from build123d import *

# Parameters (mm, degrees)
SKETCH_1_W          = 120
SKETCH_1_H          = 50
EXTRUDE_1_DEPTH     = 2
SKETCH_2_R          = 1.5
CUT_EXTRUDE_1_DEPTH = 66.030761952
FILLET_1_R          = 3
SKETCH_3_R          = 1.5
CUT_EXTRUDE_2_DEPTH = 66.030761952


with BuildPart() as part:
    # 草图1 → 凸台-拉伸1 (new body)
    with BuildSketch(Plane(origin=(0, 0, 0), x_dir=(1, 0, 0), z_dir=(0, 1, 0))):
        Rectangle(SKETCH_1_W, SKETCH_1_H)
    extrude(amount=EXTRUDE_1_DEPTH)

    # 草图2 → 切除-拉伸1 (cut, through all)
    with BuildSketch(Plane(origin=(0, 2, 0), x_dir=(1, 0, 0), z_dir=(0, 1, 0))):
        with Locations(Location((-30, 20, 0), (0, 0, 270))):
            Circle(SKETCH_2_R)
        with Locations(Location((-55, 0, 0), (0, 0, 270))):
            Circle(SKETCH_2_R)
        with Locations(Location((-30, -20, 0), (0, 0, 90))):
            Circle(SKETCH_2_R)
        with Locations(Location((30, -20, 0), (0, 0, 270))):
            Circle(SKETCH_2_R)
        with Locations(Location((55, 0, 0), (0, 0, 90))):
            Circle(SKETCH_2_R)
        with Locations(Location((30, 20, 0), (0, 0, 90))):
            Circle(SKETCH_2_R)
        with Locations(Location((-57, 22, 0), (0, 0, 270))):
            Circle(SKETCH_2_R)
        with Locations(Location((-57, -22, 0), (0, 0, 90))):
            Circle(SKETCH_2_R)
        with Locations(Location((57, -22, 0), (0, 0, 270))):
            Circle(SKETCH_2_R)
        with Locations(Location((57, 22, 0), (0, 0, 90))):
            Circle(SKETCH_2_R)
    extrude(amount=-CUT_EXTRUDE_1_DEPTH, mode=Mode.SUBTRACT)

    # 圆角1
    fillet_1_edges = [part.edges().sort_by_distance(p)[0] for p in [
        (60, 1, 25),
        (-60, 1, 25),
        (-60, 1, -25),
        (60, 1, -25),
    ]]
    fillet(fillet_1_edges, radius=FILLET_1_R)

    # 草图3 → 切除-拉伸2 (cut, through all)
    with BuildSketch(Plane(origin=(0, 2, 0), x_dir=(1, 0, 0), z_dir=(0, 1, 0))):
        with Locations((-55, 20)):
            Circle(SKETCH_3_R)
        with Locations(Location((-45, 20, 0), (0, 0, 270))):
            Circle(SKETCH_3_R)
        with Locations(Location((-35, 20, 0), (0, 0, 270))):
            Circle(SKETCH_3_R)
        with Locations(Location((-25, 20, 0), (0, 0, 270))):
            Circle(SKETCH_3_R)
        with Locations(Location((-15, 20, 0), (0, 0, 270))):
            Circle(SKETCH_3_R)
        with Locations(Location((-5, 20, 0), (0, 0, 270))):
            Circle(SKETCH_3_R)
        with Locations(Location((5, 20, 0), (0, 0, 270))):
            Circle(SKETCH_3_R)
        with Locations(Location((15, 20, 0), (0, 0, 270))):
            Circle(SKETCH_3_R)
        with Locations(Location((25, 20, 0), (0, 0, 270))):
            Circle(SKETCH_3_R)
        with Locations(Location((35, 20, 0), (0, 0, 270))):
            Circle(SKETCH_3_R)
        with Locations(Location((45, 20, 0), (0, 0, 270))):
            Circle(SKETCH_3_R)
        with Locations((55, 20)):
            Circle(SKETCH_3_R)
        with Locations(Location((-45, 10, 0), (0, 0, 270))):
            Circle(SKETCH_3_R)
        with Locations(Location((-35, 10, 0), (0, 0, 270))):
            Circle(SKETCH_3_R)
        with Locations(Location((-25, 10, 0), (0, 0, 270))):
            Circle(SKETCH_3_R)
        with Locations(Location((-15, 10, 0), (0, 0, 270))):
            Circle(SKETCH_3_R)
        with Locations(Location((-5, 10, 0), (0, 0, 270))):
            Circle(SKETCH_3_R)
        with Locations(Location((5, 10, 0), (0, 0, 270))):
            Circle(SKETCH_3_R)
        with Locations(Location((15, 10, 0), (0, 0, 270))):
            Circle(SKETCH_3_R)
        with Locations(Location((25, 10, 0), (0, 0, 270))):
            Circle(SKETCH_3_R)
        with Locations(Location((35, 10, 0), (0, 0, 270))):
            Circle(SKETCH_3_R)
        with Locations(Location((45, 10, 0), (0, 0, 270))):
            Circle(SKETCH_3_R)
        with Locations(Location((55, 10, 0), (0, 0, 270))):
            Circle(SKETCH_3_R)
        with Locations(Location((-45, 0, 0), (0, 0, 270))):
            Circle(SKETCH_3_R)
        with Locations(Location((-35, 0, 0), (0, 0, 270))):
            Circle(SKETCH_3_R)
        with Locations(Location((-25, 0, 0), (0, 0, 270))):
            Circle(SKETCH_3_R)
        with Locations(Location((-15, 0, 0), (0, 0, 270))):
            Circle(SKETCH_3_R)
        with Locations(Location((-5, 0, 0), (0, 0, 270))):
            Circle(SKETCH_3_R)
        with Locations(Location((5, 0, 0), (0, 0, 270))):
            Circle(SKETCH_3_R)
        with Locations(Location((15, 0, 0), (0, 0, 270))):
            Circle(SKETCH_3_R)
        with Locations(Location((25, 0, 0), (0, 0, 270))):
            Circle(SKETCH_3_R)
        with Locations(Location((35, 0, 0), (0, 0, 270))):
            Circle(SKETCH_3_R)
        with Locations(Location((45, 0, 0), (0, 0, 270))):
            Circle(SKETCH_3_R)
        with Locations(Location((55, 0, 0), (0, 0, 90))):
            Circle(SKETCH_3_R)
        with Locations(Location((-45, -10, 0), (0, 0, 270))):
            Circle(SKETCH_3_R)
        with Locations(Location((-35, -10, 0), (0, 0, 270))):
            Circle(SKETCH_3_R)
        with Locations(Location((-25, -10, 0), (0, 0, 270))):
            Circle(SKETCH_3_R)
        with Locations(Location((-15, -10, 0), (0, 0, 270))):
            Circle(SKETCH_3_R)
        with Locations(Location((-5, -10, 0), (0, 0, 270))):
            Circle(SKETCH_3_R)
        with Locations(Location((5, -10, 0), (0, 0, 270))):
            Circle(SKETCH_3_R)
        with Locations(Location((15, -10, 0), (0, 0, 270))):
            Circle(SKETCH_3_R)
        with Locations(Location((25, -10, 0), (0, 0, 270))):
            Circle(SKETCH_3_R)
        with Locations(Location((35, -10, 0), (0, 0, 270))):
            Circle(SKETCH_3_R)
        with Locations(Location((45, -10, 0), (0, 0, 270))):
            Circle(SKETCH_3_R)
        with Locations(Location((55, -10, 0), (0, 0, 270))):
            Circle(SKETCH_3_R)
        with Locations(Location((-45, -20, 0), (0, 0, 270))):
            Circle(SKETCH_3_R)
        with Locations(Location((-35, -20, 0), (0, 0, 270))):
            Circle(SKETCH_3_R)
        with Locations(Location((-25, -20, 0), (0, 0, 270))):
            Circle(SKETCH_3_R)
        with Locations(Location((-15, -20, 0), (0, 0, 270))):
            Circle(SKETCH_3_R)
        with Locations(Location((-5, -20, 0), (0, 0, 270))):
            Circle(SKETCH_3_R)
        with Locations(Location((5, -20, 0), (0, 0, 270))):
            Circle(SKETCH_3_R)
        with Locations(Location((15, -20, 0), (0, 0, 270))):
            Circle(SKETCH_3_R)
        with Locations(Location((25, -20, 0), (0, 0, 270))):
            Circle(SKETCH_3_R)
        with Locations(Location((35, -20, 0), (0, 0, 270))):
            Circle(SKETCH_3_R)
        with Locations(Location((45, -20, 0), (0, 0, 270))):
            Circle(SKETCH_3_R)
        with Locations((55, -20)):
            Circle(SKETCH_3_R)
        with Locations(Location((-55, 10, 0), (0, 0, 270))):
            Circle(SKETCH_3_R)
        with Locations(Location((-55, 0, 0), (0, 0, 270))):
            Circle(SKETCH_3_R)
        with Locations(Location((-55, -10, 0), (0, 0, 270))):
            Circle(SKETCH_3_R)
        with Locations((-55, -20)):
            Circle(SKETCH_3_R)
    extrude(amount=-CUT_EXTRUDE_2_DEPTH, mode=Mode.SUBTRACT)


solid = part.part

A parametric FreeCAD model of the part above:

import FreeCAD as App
import Part
import Sketcher

V = App.Vector
Q = App.Units.Quantity


def edges_at(feature, points):
    """Names of the edges that pass closest to the given points."""
    edges = feature.Shape.Edges
    near = lambda p: min(range(len(edges)), key=lambda i: edges[i].distToShape(Part.Vertex(*p))[0])
    return sorted({f"Edge{near(p) + 1}" for p in points})

doc = App.newDocument("Part")
body = doc.addObject("PartDesign::Body", "Body")

# Sketch on XZ plane
sketch1 = body.newObject("Sketcher::SketchObject", "Sketch")
sketch1.AttachmentSupport = (doc.getObject("XZ_Plane"), [""])
sketch1.MapMode = "FlatFace"
sketch1.addGeometry([
    Part.LineSegment(V(-60, -25, 0), V(-60, 25, 0)),
    Part.LineSegment(V(-60, 25, 0), V(60, 25, 0)),
    Part.LineSegment(V(60, 25, 0), V(60, -25, 0)),
    Part.LineSegment(V(60, -25, 0), V(-60, -25, 0)),
], False)
sketch1.addConstraint([
    Sketcher.Constraint("Coincident", 0, 2, 1, 1),
    Sketcher.Constraint("Coincident", 1, 2, 2, 1),
    Sketcher.Constraint("Coincident", 2, 2, 3, 1),
    Sketcher.Constraint("Coincident", 3, 2, 0, 1),
    Sketcher.Constraint("Vertical", 0),
    Sketcher.Constraint("Horizontal", 1),
    Sketcher.Constraint("Vertical", 2),
    Sketcher.Constraint("Horizontal", 3),
    Sketcher.Constraint("Symmetric", 0, 2, 2, 2, -1, 1),
    Sketcher.Constraint("DistanceX", 1, 1, 1, 2, Q("120 mm")),
    Sketcher.Constraint("DistanceY", 0, 1, 0, 2, Q("50 mm")),
])
pad1 = body.newObject("PartDesign::Pad", "Pad")
pad1.Profile = sketch1
pad1.Length = 2
pad1.Reversed = True

# Sketch on XZ plane
sketch2 = body.newObject("Sketcher::SketchObject", "Sketch001")
sketch2.AttachmentSupport = (doc.getObject("XZ_Plane"), [""])
sketch2.MapMode = "FlatFace"
sketch2.AttachmentOffset = App.Placement(V(0, 0, -2), App.Rotation())
sketch2.addGeometry([
    Part.Circle(V(-30, -20, 0), V(0, 0, 1), 1.5),  # 0
    Part.Circle(V(-55, 0, 0), V(0, 0, 1), 1.5),  # 1
    Part.Circle(V(-30, 20, 0), V(0, 0, 1), 1.5),  # 2
    Part.Circle(V(30, 20, 0), V(0, 0, 1), 1.5),  # 3
    Part.Circle(V(55, 0, 0), V(0, 0, 1), 1.5),  # 4
    Part.Circle(V(30, -20, 0), V(0, 0, 1), 1.5),  # 5
    Part.Circle(V(-57, -22, 0), V(0, 0, 1), 1.5),  # 6
    Part.Circle(V(-57, 22, 0), V(0, 0, 1), 1.5),  # 7
    Part.Circle(V(57, 22, 0), V(0, 0, 1), 1.5),  # 8
    Part.Circle(V(57, -22, 0), V(0, 0, 1), 1.5),  # 9
], False)
sketch2.addConstraint([
    Sketcher.Constraint("Equal", 0, 1),
    Sketcher.Constraint("Equal", 1, 2),
    Sketcher.Constraint("Equal", 2, 3),
    Sketcher.Constraint("Equal", 3, 4),
    Sketcher.Constraint("Equal", 4, 5),
    Sketcher.Constraint("Equal", 5, 6),
    Sketcher.Constraint("Equal", 6, 7),
    Sketcher.Constraint("Equal", 7, 8),
    Sketcher.Constraint("Equal", 8, 9),
    Sketcher.Constraint("Symmetric", 0, 3, 3, 3, -1, 1),
    Sketcher.Constraint("Symmetric", 1, 3, 4, 3, -1, 1),
    Sketcher.Constraint("Symmetric", 2, 3, 5, 3, -1, 1),
    Sketcher.Constraint("Symmetric", 6, 3, 8, 3, -1, 1),
    Sketcher.Constraint("Symmetric", 7, 3, 9, 3, -1, 1),
    Sketcher.Constraint("Symmetric", 2, 3, 3, 3, -2),
    Sketcher.Constraint("Symmetric", 7, 3, 8, 3, -2),
    Sketcher.Constraint("PointOnObject", 1, 3, -1),
    Sketcher.Constraint("Diameter", 0, Q("3 mm")),
    Sketcher.Constraint("DistanceX", 0, 3, -1, 1, Q("30 mm")),
    Sketcher.Constraint("DistanceY", 0, 3, -1, 1, Q("20 mm")),
    Sketcher.Constraint("DistanceX", 1, 3, -1, 1, Q("55 mm")),
    Sketcher.Constraint("DistanceX", 6, 3, -1, 1, Q("57 mm")),
    Sketcher.Constraint("DistanceY", 6, 3, -1, 1, Q("22 mm")),
])
pocket1 = body.newObject("PartDesign::Pocket", "Pocket")
pocket1.Profile = sketch2
pocket1.Type = "ThroughAll"
pocket1.Reversed = True
doc.recompute()

fillet = body.newObject("PartDesign::Fillet", "Fillet")
fillet.Base = (pocket1, edges_at(pocket1, [
    (60, 1, 25),
    (-60, 1, 25),
    (-60, 1, -25),
    (60, 1, -25),
]))
fillet.Radius = 3

# Sketch on XZ plane
sketch3 = body.newObject("Sketcher::SketchObject", "Sketch002")
sketch3.AttachmentSupport = (doc.getObject("XZ_Plane"), [""])
sketch3.MapMode = "FlatFace"
sketch3.AttachmentOffset = App.Placement(V(0, 0, -2), App.Rotation())
sketch3.addGeometry([
    Part.Circle(V(-55, -20, 0), V(0, 0, 1), 1.5),  # 0
    Part.Circle(V(-45, -20, 0), V(0, 0, 1), 1.5),  # 1
    Part.Circle(V(-35, -20, 0), V(0, 0, 1), 1.5),  # 2
    Part.Circle(V(-25, -20, 0), V(0, 0, 1), 1.5),  # 3
    Part.Circle(V(-15, -20, 0), V(0, 0, 1), 1.5),  # 4
    Part.Circle(V(-5, -20, 0), V(0, 0, 1), 1.5),  # 5
    Part.Circle(V(5, -20, 0), V(0, 0, 1), 1.5),  # 6
    Part.Circle(V(15, -20, 0), V(0, 0, 1), 1.5),  # 7
    Part.Circle(V(25, -20, 0), V(0, 0, 1), 1.5),  # 8
    Part.Circle(V(35, -20, 0), V(0, 0, 1), 1.5),  # 9
    Part.Circle(V(45, -20, 0), V(0, 0, 1), 1.5),  # 10
    Part.Circle(V(55, -20, 0), V(0, 0, 1), 1.5),  # 11
    Part.Circle(V(-45, -10, 0), V(0, 0, 1), 1.5),  # 12
    Part.Circle(V(-35, -10, 0), V(0, 0, 1), 1.5),  # 13
    Part.Circle(V(-25, -10, 0), V(0, 0, 1), 1.5),  # 14
    Part.Circle(V(-15, -10, 0), V(0, 0, 1), 1.5),  # 15
    Part.Circle(V(-5, -10, 0), V(0, 0, 1), 1.5),  # 16
    Part.Circle(V(5, -10, 0), V(0, 0, 1), 1.5),  # 17
    Part.Circle(V(15, -10, 0), V(0, 0, 1), 1.5),  # 18
    Part.Circle(V(25, -10, 0), V(0, 0, 1), 1.5),  # 19
    Part.Circle(V(35, -10, 0), V(0, 0, 1), 1.5),  # 20
    Part.Circle(V(45, -10, 0), V(0, 0, 1), 1.5),  # 21
    Part.Circle(V(55, -10, 0), V(0, 0, 1), 1.5),  # 22
    Part.Circle(V(-45, 0, 0), V(0, 0, 1), 1.5),  # 23
    Part.Circle(V(-35, 0, 0), V(0, 0, 1), 1.5),  # 24
    Part.Circle(V(-25, 0, 0), V(0, 0, 1), 1.5),  # 25
    Part.Circle(V(-15, 0, 0), V(0, 0, 1), 1.5),  # 26
    Part.Circle(V(-5, 0, 0), V(0, 0, 1), 1.5),  # 27
    Part.Circle(V(5, 0, 0), V(0, 0, 1), 1.5),  # 28
    Part.Circle(V(15, 0, 0), V(0, 0, 1), 1.5),  # 29
    Part.Circle(V(25, 0, 0), V(0, 0, 1), 1.5),  # 30
    Part.Circle(V(35, 0, 0), V(0, 0, 1), 1.5),  # 31
    Part.Circle(V(45, 0, 0), V(0, 0, 1), 1.5),  # 32
    Part.Circle(V(55, 0, 0), V(0, 0, 1), 1.5),  # 33
    Part.Circle(V(-45, 10, 0), V(0, 0, 1), 1.5),  # 34
    Part.Circle(V(-35, 10, 0), V(0, 0, 1), 1.5),  # 35
    Part.Circle(V(-25, 10, 0), V(0, 0, 1), 1.5),  # 36
    Part.Circle(V(-15, 10, 0), V(0, 0, 1), 1.5),  # 37
    Part.Circle(V(-5, 10, 0), V(0, 0, 1), 1.5),  # 38
    Part.Circle(V(5, 10, 0), V(0, 0, 1), 1.5),  # 39
    Part.Circle(V(15, 10, 0), V(0, 0, 1), 1.5),  # 40
    Part.Circle(V(25, 10, 0), V(0, 0, 1), 1.5),  # 41
    Part.Circle(V(35, 10, 0), V(0, 0, 1), 1.5),  # 42
    Part.Circle(V(45, 10, 0), V(0, 0, 1), 1.5),  # 43
    Part.Circle(V(55, 10, 0), V(0, 0, 1), 1.5),  # 44
    Part.Circle(V(-45, 20, 0), V(0, 0, 1), 1.5),  # 45
    Part.Circle(V(-35, 20, 0), V(0, 0, 1), 1.5),  # 46
    Part.Circle(V(-25, 20, 0), V(0, 0, 1), 1.5),  # 47
    Part.Circle(V(-15, 20, 0), V(0, 0, 1), 1.5),  # 48
    Part.Circle(V(-5, 20, 0), V(0, 0, 1), 1.5),  # 49
    Part.Circle(V(5, 20, 0), V(0, 0, 1), 1.5),  # 50
    Part.Circle(V(15, 20, 0), V(0, 0, 1), 1.5),  # 51
    Part.Circle(V(25, 20, 0), V(0, 0, 1), 1.5),  # 52
    Part.Circle(V(35, 20, 0), V(0, 0, 1), 1.5),  # 53
    Part.Circle(V(45, 20, 0), V(0, 0, 1), 1.5),  # 54
    Part.Circle(V(55, 20, 0), V(0, 0, 1), 1.5),  # 55
    Part.Circle(V(-55, -10, 0), V(0, 0, 1), 1.5),  # 56
    Part.Circle(V(-55, 0, 0), V(0, 0, 1), 1.5),  # 57
    Part.Circle(V(-55, 10, 0), V(0, 0, 1), 1.5),  # 58
    Part.Circle(V(-55, 20, 0), V(0, 0, 1), 1.5),  # 59
], False)
sketch3.addConstraint([
    Sketcher.Constraint("Equal", 0, 1),
    Sketcher.Constraint("Equal", 1, 2),
    Sketcher.Constraint("Equal", 2, 3),
    Sketcher.Constraint("Equal", 3, 4),
    Sketcher.Constraint("Equal", 4, 5),
    Sketcher.Constraint("Equal", 5, 6),
    Sketcher.Constraint("Equal", 6, 7),
    Sketcher.Constraint("Equal", 7, 8),
    Sketcher.Constraint("Equal", 8, 9),
    Sketcher.Constraint("Equal", 9, 10),
    Sketcher.Constraint("Equal", 10, 11),
    Sketcher.Constraint("Equal", 11, 12),
    Sketcher.Constraint("Equal", 12, 13),
    Sketcher.Constraint("Equal", 13, 14),
    Sketcher.Constraint("Equal", 14, 15),
    Sketcher.Constraint("Equal", 15, 16),
    Sketcher.Constraint("Equal", 16, 17),
    Sketcher.Constraint("Equal", 17, 18),
    Sketcher.Constraint("Equal", 18, 19),
    Sketcher.Constraint("Equal", 19, 20),
    Sketcher.Constraint("Equal", 20, 21),
    Sketcher.Constraint("Equal", 21, 22),
    Sketcher.Constraint("Equal", 22, 23),
    Sketcher.Constraint("Equal", 23, 24),
    Sketcher.Constraint("Equal", 24, 25),
    Sketcher.Constraint("Equal", 25, 26),
    Sketcher.Constraint("Equal", 26, 27),
    Sketcher.Constraint("Equal", 27, 28),
    Sketcher.Constraint("Equal", 28, 29),
    Sketcher.Constraint("Equal", 29, 30),
    Sketcher.Constraint("Equal", 30, 31),
    Sketcher.Constraint("Equal", 31, 32),
    Sketcher.Constraint("Equal", 32, 33),
    Sketcher.Constraint("Equal", 33, 34),
    Sketcher.Constraint("Equal", 34, 35),
    Sketcher.Constraint("Equal", 35, 36),
    Sketcher.Constraint("Equal", 36, 37),
    Sketcher.Constraint("Equal", 37, 38),
    Sketcher.Constraint("Equal", 38, 39),
    Sketcher.Constraint("Equal", 39, 40),
    Sketcher.Constraint("Equal", 40, 41),
    Sketcher.Constraint("Equal", 41, 42),
    Sketcher.Constraint("Equal", 42, 43),
    Sketcher.Constraint("Equal", 43, 44),
    Sketcher.Constraint("Equal", 44, 45),
    Sketcher.Constraint("Equal", 45, 46),
    Sketcher.Constraint("Equal", 46, 47),
    Sketcher.Constraint("Equal", 47, 48),
    Sketcher.Constraint("Equal", 48, 49),
    Sketcher.Constraint("Equal", 49, 50),
    Sketcher.Constraint("Equal", 50, 51),
    Sketcher.Constraint("Equal", 51, 52),
    Sketcher.Constraint("Equal", 52, 53),
    Sketcher.Constraint("Equal", 53, 54),
    Sketcher.Constraint("Equal", 54, 55),
    Sketcher.Constraint("Equal", 55, 56),
    Sketcher.Constraint("Equal", 56, 57),
    Sketcher.Constraint("Equal", 57, 58),
    Sketcher.Constraint("Equal", 58, 59),
    Sketcher.Constraint("Symmetric", 27, 3, 28, 3, -1, 1),
    Sketcher.Constraint("Symmetric", 26, 3, 29, 3, -1, 1),
    Sketcher.Constraint("Symmetric", 25, 3, 30, 3, -1, 1),
    Sketcher.Constraint("Symmetric", 24, 3, 31, 3, -1, 1),
    Sketcher.Constraint("Symmetric", 23, 3, 32, 3, -1, 1),
    Sketcher.Constraint("Symmetric", 21, 3, 34, 3, -1, 1),
    Sketcher.Constraint("Symmetric", 20, 3, 35, 3, -1, 1),
    Sketcher.Constraint("Symmetric", 19, 3, 36, 3, -1, 1),
    Sketcher.Constraint("Symmetric", 18, 3, 37, 3, -1, 1),
    Sketcher.Constraint("Symmetric", 17, 3, 38, 3, -1, 1),
    Sketcher.Constraint("Symmetric", 16, 3, 39, 3, -1, 1),
    Sketcher.Constraint("Symmetric", 15, 3, 40, 3, -1, 1),
    Sketcher.Constraint("Symmetric", 14, 3, 41, 3, -1, 1),
    Sketcher.Constraint("Symmetric", 13, 3, 42, 3, -1, 1),
    Sketcher.Constraint("Symmetric", 12, 3, 43, 3, -1, 1),
    Sketcher.Constraint("Symmetric", 10, 3, 45, 3, -1, 1),
    Sketcher.Constraint("Symmetric", 9, 3, 46, 3, -1, 1),
    Sketcher.Constraint("Symmetric", 8, 3, 47, 3, -1, 1),
    Sketcher.Constraint("Symmetric", 7, 3, 48, 3, -1, 1),
    Sketcher.Constraint("Symmetric", 6, 3, 49, 3, -1, 1),
    Sketcher.Constraint("Symmetric", 5, 3, 50, 3, -1, 1),
    Sketcher.Constraint("Symmetric", 4, 3, 51, 3, -1, 1),
    Sketcher.Constraint("Symmetric", 3, 3, 52, 3, -1, 1),
    Sketcher.Constraint("Symmetric", 2, 3, 53, 3, -1, 1),
    Sketcher.Constraint("Symmetric", 1, 3, 54, 3, -1, 1),
    Sketcher.Constraint("Symmetric", 0, 3, 55, 3, -1, 1),
    Sketcher.Constraint("Symmetric", 44, 3, 56, 3, -1, 1),
    Sketcher.Constraint("Symmetric", 33, 3, 57, 3, -1, 1),
    Sketcher.Constraint("Symmetric", 22, 3, 58, 3, -1, 1),
    Sketcher.Constraint("Symmetric", 11, 3, 59, 3, -1, 1),
    Sketcher.Constraint("Symmetric", 5, 3, 6, 3, -2),
    Sketcher.Constraint("Symmetric", 4, 3, 7, 3, -2),
    Sketcher.Constraint("Symmetric", 3, 3, 8, 3, -2),
    Sketcher.Constraint("Symmetric", 2, 3, 9, 3, -2),
    Sketcher.Constraint("Symmetric", 1, 3, 10, 3, -2),
    Sketcher.Constraint("Symmetric", 0, 3, 11, 3, -2),
    Sketcher.Constraint("Symmetric", 16, 3, 17, 3, -2),
    Sketcher.Constraint("Symmetric", 15, 3, 18, 3, -2),
    Sketcher.Constraint("Symmetric", 14, 3, 19, 3, -2),
    Sketcher.Constraint("Symmetric", 13, 3, 20, 3, -2),
    Sketcher.Constraint("Symmetric", 12, 3, 21, 3, -2),
    Sketcher.Constraint("Symmetric", 22, 3, 56, 3, -2),
    Sketcher.Constraint("PointOnObject", 23, 3, -1),
    Sketcher.Constraint("PointOnObject", 24, 3, -1),
    Sketcher.Constraint("PointOnObject", 25, 3, -1),
    Sketcher.Constraint("PointOnObject", 26, 3, -1),
    Sketcher.Constraint("PointOnObject", 27, 3, -1),
    Sketcher.Constraint("PointOnObject", 33, 3, -1),
    Sketcher.Constraint("Horizontal", 0, 3, 1, 3),
    Sketcher.Constraint("Horizontal", 1, 3, 2, 3),
    Sketcher.Constraint("Horizontal", 2, 3, 3, 3),
    Sketcher.Constraint("Horizontal", 3, 3, 4, 3),
    Sketcher.Constraint("Horizontal", 4, 3, 5, 3),
    Sketcher.Constraint("Horizontal", 12, 3, 13, 3),
    Sketcher.Constraint("Horizontal", 13, 3, 14, 3),
    Sketcher.Constraint("Horizontal", 14, 3, 15, 3),
    Sketcher.Constraint("Horizontal", 15, 3, 16, 3),
    Sketcher.Constraint("Horizontal", 21, 3, 22, 3),
    Sketcher.Constraint("Vertical", 1, 3, 12, 3),
    Sketcher.Constraint("Vertical", 2, 3, 13, 3),
    Sketcher.Constraint("Vertical", 3, 3, 14, 3),
    Sketcher.Constraint("Vertical", 4, 3, 15, 3),
    Sketcher.Constraint("Vertical", 5, 3, 16, 3),
    Sketcher.Constraint("Vertical", 11, 3, 22, 3),
    Sketcher.Constraint("Vertical", 12, 3, 23, 3),
    Sketcher.Constraint("Vertical", 13, 3, 24, 3),
    Sketcher.Constraint("Vertical", 14, 3, 25, 3),
    Sketcher.Constraint("Vertical", 15, 3, 26, 3),
    Sketcher.Constraint("Vertical", 16, 3, 27, 3),
    Sketcher.Constraint("Vertical", 22, 3, 33, 3),
    Sketcher.Constraint("Diameter", 0, Q("3 mm")),
    Sketcher.Constraint("DistanceX", 0, 3, -1, 1, Q("55 mm")),
    Sketcher.Constraint("DistanceY", 0, 3, -1, 1, Q("20 mm")),
    Sketcher.Constraint("DistanceX", 1, 3, -1, 1, Q("45 mm")),
    Sketcher.Constraint("DistanceX", 2, 3, -1, 1, Q("35 mm")),
    Sketcher.Constraint("DistanceX", 3, 3, -1, 1, Q("25 mm")),
    Sketcher.Constraint("DistanceX", 4, 3, -1, 1, Q("15 mm")),
    Sketcher.Constraint("DistanceX", 5, 3, -1, 1, Q("5 mm")),
    Sketcher.Constraint("DistanceY", 12, 3, -1, 1, Q("10 mm")),
])
pocket2 = body.newObject("PartDesign::Pocket", "Pocket001")
pocket2.Profile = sketch3
pocket2.Type = "ThroughAll"
pocket2.Reversed = True

doc.recompute()
